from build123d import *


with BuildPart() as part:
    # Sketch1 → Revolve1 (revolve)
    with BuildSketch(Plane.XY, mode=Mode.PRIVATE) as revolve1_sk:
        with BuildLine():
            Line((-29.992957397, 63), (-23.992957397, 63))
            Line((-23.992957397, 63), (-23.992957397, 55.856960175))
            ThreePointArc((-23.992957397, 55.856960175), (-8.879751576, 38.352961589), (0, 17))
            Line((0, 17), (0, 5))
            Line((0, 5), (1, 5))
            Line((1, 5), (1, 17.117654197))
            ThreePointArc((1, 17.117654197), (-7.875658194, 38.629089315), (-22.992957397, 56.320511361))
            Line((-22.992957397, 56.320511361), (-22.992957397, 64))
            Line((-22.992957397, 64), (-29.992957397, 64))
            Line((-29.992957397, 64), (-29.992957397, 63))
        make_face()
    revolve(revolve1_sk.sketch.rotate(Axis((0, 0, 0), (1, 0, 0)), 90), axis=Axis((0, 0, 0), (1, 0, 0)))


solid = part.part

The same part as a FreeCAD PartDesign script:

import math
import FreeCAD as App
import Part
import Sketcher
Q = App.Units.Quantity

doc = App.newDocument("Part")
body = doc.addObject("PartDesign::Body", "Body")

sketch1 = doc.addObject("Sketcher::SketchObject", "Sketch")
body.addObject(sketch1)
sketch1.AttachmentSupport = (doc.XY_Plane, [""])
sketch1.MapMode = "FlatFace"
sketch1.addGeometry(Part.LineSegment(App.Vector(-30, 63, 0), App.Vector(-24, 63, 0)), False)
sketch1.addGeometry(Part.LineSegment(App.Vector(-24, 63, 0), App.Vector(-24, 55.9, 0)), False)
sketch1.addGeometry(Part.ArcOfCircle(Part.Circle(App.Vector(-71, 0, 0), App.Vector(0, 0, 1), 73), math.radians(13), math.radians(50)), False)
sketch1.addGeometry(Part.LineSegment(App.Vector(0, 17, 0), App.Vector(0, 5, 0)), False)
sketch1.addGeometry(Part.LineSegment(App.Vector(0, 5, 0), App.Vector(1, 5, 0)), False)
sketch1.addGeometry(Part.LineSegment(App.Vector(1, 5, 0), App.Vector(1, 17.1, 0)), False)
sketch1.addGeometry(Part.ArcOfCircle(Part.Circle(App.Vector(-71, 0, 0), App.Vector(0, 0, 1), 74), math.radians(13), math.radians(50)), False)
sketch1.addGeometry(Part.LineSegment(App.Vector(-23, 56.3, 0), App.Vector(-23, 64, 0)), False)
sketch1.addGeometry(Part.LineSegment(App.Vector(-23, 64, 0), App.Vector(-30, 64, 0)), False)
sketch1.addGeometry(Part.LineSegment(App.Vector(-30, 64, 0), App.Vector(-30, 63, 0)), False)
sketch1.addConstraint(Sketcher.Constraint("Coincident", 0, 2, 1, 1))
sketch1.addConstraint(Sketcher.Constraint("Coincident", 1, 2, 2, 2))
sketch1.addConstraint(Sketcher.Constraint("Coincident", 2, 1, 3, 1))
sketch1.addConstraint(Sketcher.Constraint("Coincident", 3, 2, 4, 1))
sketch1.addConstraint(Sketcher.Constraint("Coincident", 4, 2, 5, 1))
sketch1.addConstraint(Sketcher.Constraint("Coincident", 5, 2, 6, 1))
sketch1.addConstraint(Sketcher.Constraint("Coincident", 6, 2, 7, 1))
sketch1.addConstraint(Sketcher.Constraint("Coincident", 7, 2, 8, 1))
sketch1.addConstraint(Sketcher.Constraint("Coincident", 8, 2, 9, 1))
sketch1.addConstraint(Sketcher.Constraint("Coincident", 9, 2, 0, 1))
sketch1.addConstraint(Sketcher.Constraint("Horizontal", 0))
sketch1.addConstraint(Sketcher.Constraint("Vertical", 1))
sketch1.addConstraint(Sketcher.Constraint("Vertical", 3))
sketch1.addConstraint(Sketcher.Constraint("Horizontal", 4))
sketch1.addConstraint(Sketcher.Constraint("Vertical", 5))
sketch1.addConstraint(Sketcher.Constraint("Vertical", 7))
sketch1.addConstraint(Sketcher.Constraint("Horizontal", 8))
sketch1.addConstraint(Sketcher.Constraint("Vertical", 9))
sketch1.addConstraint(Sketcher.Constraint("Coincident", 6, 3, 2, 3))
sketch1.addConstraint(Sketcher.Constraint("PointOnObject", 2, 3, -1))
sketch1.addConstraint(Sketcher.Constraint("PointOnObject", 2, 1, -2))
sketch1.addConstraint(Sketcher.Constraint("Equal", 4, 9))
sketch1.addConstraint(Sketcher.Constraint("Radius", 2, Q("73 mm")))
sketch1.addConstraint(Sketcher.Constraint("Radius", 6, Q("74 mm")))
sketch1.addConstraint(Sketcher.Constraint("DistanceX", 0, 1, 0, 2, Q("6 mm")))
sketch1.addConstraint(Sketcher.Constraint("DistanceX", 4, 1, 4, 2, Q("1 mm")))
sketch1.addConstraint(Sketcher.Constraint("DistanceX", 8, 2, 8, 1, Q("7 mm")))
sketch1.addConstraint(Sketcher.Constraint("DistanceY", 3, 2, 3, 1, Q("12 mm")))
sketch1.addConstraint(Sketcher.Constraint("DistanceY", -1, 1, 0, 2, Q("63 mm")))
sketch1.addConstraint(Sketcher.Constraint("DistanceY", -1, 1, 2, 1, Q("17 mm")))
sketch1.addConstraint(Sketcher.Constraint("DistanceX", 2, 3, 0, 2, Q("47 mm")))
revolution = doc.addObject("PartDesign::Revolution", "Revolution")
body.addObject(revolution)
revolution.Profile = sketch1
revolution.ReferenceAxis = (sketch1, ["H_Axis"])
revolution.Angle = 360

doc.recompute()
